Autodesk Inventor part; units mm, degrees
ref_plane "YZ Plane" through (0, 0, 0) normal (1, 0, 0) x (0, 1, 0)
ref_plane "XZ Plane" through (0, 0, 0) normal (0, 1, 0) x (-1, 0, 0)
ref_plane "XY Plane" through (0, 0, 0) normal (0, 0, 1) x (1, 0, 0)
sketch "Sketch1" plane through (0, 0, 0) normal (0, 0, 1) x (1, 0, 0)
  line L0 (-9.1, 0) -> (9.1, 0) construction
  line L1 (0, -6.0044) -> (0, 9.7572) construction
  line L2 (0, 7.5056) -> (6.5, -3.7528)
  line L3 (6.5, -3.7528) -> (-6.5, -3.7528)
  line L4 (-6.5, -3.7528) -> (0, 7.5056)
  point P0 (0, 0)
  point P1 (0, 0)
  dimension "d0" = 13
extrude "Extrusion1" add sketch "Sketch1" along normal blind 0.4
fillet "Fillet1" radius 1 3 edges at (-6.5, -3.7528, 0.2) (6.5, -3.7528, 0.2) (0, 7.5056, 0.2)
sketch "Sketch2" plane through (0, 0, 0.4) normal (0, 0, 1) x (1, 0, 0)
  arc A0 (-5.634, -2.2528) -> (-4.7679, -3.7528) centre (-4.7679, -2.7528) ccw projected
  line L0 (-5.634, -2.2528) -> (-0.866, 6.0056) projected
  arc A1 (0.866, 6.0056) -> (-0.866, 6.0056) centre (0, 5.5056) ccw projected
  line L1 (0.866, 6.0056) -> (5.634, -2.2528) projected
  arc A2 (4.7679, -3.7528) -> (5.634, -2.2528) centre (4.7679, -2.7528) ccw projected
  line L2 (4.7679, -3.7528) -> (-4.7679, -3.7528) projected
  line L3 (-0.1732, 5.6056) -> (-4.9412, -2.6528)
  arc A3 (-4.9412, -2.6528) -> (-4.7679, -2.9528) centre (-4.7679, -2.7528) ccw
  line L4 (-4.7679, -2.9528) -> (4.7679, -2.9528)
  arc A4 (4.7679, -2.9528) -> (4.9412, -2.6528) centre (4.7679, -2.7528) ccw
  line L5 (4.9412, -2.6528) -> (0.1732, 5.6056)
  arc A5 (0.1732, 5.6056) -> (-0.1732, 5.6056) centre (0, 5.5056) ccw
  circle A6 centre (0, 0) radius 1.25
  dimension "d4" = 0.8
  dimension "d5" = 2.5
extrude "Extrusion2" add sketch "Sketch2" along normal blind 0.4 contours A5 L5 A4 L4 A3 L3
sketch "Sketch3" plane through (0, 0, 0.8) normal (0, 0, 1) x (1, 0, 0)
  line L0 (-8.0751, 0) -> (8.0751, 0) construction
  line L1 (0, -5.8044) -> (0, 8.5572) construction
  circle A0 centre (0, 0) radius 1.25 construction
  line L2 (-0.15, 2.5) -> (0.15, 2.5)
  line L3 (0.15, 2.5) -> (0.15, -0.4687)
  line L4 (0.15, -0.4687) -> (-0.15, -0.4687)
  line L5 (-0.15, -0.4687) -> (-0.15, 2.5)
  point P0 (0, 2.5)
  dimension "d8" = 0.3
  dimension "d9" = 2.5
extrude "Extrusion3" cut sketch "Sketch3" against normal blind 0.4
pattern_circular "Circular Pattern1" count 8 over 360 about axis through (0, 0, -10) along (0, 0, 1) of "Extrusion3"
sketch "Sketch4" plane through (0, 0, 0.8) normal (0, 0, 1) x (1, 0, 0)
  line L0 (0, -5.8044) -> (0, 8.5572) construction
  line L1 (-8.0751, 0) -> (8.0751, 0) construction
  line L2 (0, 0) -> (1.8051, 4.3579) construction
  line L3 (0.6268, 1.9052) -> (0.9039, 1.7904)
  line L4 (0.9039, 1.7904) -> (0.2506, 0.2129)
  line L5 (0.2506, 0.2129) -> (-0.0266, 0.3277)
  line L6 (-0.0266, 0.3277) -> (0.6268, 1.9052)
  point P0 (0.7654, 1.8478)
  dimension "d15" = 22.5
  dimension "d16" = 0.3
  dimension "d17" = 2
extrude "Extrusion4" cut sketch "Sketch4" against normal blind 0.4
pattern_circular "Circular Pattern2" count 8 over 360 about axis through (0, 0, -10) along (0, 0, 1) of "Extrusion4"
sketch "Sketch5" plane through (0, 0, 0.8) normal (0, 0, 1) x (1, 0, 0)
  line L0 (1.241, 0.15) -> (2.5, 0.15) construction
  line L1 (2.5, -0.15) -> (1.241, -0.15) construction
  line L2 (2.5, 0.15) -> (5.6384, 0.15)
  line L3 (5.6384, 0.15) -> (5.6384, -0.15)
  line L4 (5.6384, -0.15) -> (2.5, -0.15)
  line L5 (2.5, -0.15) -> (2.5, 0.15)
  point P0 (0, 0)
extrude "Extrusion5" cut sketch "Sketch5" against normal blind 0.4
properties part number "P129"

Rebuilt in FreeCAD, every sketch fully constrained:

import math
import FreeCAD as App
import Part
import Sketcher
Q = App.Units.Quantity


def edges_at(feature, points):
    """Names of the edges that pass closest to the given points."""
    edges = feature.Shape.Edges
    near = lambda p: min(range(len(edges)), key=lambda i: edges[i].distToShape(Part.Vertex(*p))[0])
    return sorted({f"Edge{near(p) + 1}" for p in points})

doc = App.newDocument("Part")
body = doc.addObject("PartDesign::Body", "Body")

# Sketch on XY plane
sketch1 = body.newObject("Sketcher::SketchObject", "Sketch")
sketch1.AttachmentSupport = (doc.getObject("XY_Plane"), [""])
sketch1.MapMode = "FlatFace"
sketch1.addGeometry([
    Part.LineSegment(App.Vector(6, -4, 0), App.Vector(0, 8, 0)),
    Part.LineSegment(App.Vector(0, 8, 0), App.Vector(-6, -4, 0)),
    Part.LineSegment(App.Vector(-6, -4, 0), App.Vector(6, -4, 0)),
], False)
sketch1.addConstraint([
    Sketcher.Constraint("Coincident", 0, 2, 1, 1),
    Sketcher.Constraint("Coincident", 1, 2, 2, 1),
    Sketcher.Constraint("Coincident", 2, 2, 0, 1),
    Sketcher.Constraint("Horizontal", 2),
    Sketcher.Constraint("PointOnObject", 0, 2, -2),
    Sketcher.Constraint("Equal", 0, 1),
    Sketcher.Constraint("DistanceX", 2, 1, 2, 2, 13.0),
    Sketcher.Constraint("Distance", 0, 13.0),
    Sketcher.Constraint("DistanceY", -1, 1, 0, 2, 7.5056),
])
pad1 = body.newObject("PartDesign::Pad", "Pad")
pad1.Profile = sketch1
pad1.Length = 0.4
doc.recompute()

fillet = body.newObject("PartDesign::Fillet", "Fillet")
fillet.Base = (pad1, edges_at(pad1, [(-6.5, -3.753, 0.2), (6.5, -3.753, 0.2), (0, 7.506, 0.2)]))
fillet.Radius = 1

# Sketch on XY plane
sketch2 = body.newObject("Sketcher::SketchObject", "Sketch001")
sketch2.AttachmentSupport = (doc.getObject("XY_Plane"), [""])
sketch2.MapMode = "FlatFace"
sketch2.AttachmentOffset = App.Placement(App.Vector(0, 0, 0.4), App.Rotation())
sketch2.addGeometry([
    Part.ArcOfCircle(Part.Circle(App.Vector(0, 5.51, 0), App.Vector(0, 0, 1), 0.2), math.radians(30), math.radians(150)),  # 0
    Part.LineSegment(App.Vector(-0.17, 5.61, 0), App.Vector(-4.94, -2.65, 0)),  # 1
    Part.ArcOfCircle(Part.Circle(App.Vector(-4.77, -2.75, 0), App.Vector(0, 0, 1), 0.2), math.radians(150), math.radians(270)),  # 2
    Part.LineSegment(App.Vector(-4.77, -2.95, 0), App.Vector(4.77, -2.95, 0)),  # 3
    Part.ArcOfCircle(Part.Circle(App.Vector(4.77, -2.75, 0), App.Vector(0, 0, 1), 0.2), math.radians(-90), math.radians(30)),  # 4
    Part.LineSegment(App.Vector(4.94, -2.65, 0), App.Vector(0.17, 5.61, 0)),  # 5
    Part.Circle(App.Vector(0, 0, 0), App.Vector(0, 0, 1), 1.25),  # 6
], False)
sketch2.addConstraint([
    Sketcher.Constraint("Tangent", 0, 2, 1, 1),
    Sketcher.Constraint("Tangent", 1, 2, 2, 1),
    Sketcher.Constraint("Tangent", 2, 2, 3, 1),
    Sketcher.Constraint("Tangent", 3, 2, 4, 1),
    Sketcher.Constraint("Tangent", 4, 2, 5, 1),
    Sketcher.Constraint("Tangent", 5, 2, 0, 1),
    Sketcher.Constraint("Horizontal", 3),
    Sketcher.Constraint("Coincident", 6, 3, -1, 1),
    Sketcher.Constraint("Equal", 0, 2),
    Sketcher.Constraint("Equal", 2, 4),
    Sketcher.Constraint("Symmetric", 1, 2, 4, 2, -2),
    Sketcher.Constraint("Diameter", 6, 2.5),
    Sketcher.Constraint("Radius", 0, 0.2),
    Sketcher.Constraint("Angle", 1, Q("-120 deg")),
    Sketcher.Constraint("Distance", 1, 9.536),
    Sketcher.Constraint("DistanceY", 2, 2, -1, 1, 2.953),
])
pad2 = body.newObject("PartDesign::Pad", "Pad001")
pad2.Profile = sketch2
pad2.Length = 0.4

# Sketch on XY plane
sketch3 = body.newObject("Sketcher::SketchObject", "Sketch002")
sketch3.AttachmentSupport = (doc.getObject("XY_Plane"), [""])
sketch3.MapMode = "FlatFace"
sketch3.AttachmentOffset = App.Placement(App.Vector(0, 0, 0.8), App.Rotation())
sketch3.addGeometry([
    Part.LineSegment(App.Vector(0.15, 2.5, 0), App.Vector(-0.15, 2.5, 0)),
    Part.LineSegment(App.Vector(-0.15, 2.5, 0), App.Vector(-0.15, -0.47, 0)),
    Part.LineSegment(App.Vector(-0.15, -0.47, 0), App.Vector(0.15, -0.47, 0)),
    Part.LineSegment(App.Vector(0.15, -0.47, 0), App.Vector(0.15, 2.5, 0)),
], False)
sketch3.addConstraint([
    Sketcher.Constraint("Coincident", 0, 2, 1, 1),
    Sketcher.Constraint("Coincident", 1, 2, 2, 1),
    Sketcher.Constraint("Coincident", 2, 2, 3, 1),
    Sketcher.Constraint("Coincident", 3, 2, 0, 1),
    Sketcher.Constraint("Horizontal", 0),
    Sketcher.Constraint("Vertical", 1),
    Sketcher.Constraint("Horizontal", 2),
    Sketcher.Constraint("Vertical", 3),
    Sketcher.Constraint("DistanceX", 0, 2, 0, 1, 0.3),
    Sketcher.Constraint("DistanceY", -1, 1, 0, 2, 2.5),
    Sketcher.Constraint("DistanceX", 0, 2, -1, 1, 0.15),
    Sketcher.Constraint("DistanceY", 1, 2, 1, 1, 2.9687),
])
pocket1 = body.newObject("PartDesign::Pocket", "Pocket")
pocket1.Profile = sketch3
pocket1.Length = 0.4
doc.recompute()

polarpattern = body.newObject("PartDesign::PolarPattern", "PolarPattern")
polarpattern.Originals = [pocket1]
polarpattern.Axis = (doc.getObject("Z_Axis"), [""])
polarpattern.Angle = 360
polarpattern.Occurrences = 8
body.Tip = polarpattern

# Sketch on XY plane
sketch4 = body.newObject("Sketcher::SketchObject", "Sketch003")
sketch4.AttachmentSupport = (doc.getObject("XY_Plane"), [""])
sketch4.MapMode = "FlatFace"
sketch4.AttachmentOffset = App.Placement(App.Vector(0, 0, 0.8), App.Rotation())
sketch4.addGeometry([
    Part.LineSegment(App.Vector(0.9, 1.79, 0), App.Vector(0.63, 1.91, 0)),
    Part.LineSegment(App.Vector(0.63, 1.91, 0), App.Vector(-0.03, 0.33, 0)),
    Part.LineSegment(App.Vector(-0.03, 0.33, 0), App.Vector(0.25, 0.21, 0)),
    Part.LineSegment(App.Vector(0.25, 0.21, 0), App.Vector(0.9, 1.79, 0)),
], False)
sketch4.addConstraint([
    Sketcher.Constraint("Coincident", 0, 2, 1, 1),
    Sketcher.Constraint("Coincident", 1, 2, 2, 1),
    Sketcher.Constraint("Coincident", 2, 2, 3, 1),
    Sketcher.Constraint("Coincident", 3, 2, 0, 1),
    Sketcher.Constraint("Perpendicular", 0, 1),
    Sketcher.Constraint("Perpendicular", 1, 2),
    Sketcher.Constraint("Perpendicular", 2, 3),
    Sketcher.Constraint("Distance", 0, 0.3),
    Sketcher.Constraint("Angle", 1, Q("-112.4993 deg")),
    Sketcher.Constraint("DistanceY", -1, 1, 2, 2, 0.213),
    Sketcher.Constraint("DistanceX", -1, 1, 3, 2, 0.904),
    Sketcher.Constraint("Distance", 1, 1.7075),
])
pocket2 = body.newObject("PartDesign::Pocket", "Pocket001")
pocket2.Profile = sketch4
pocket2.Length = 0.4
doc.recompute()

polarpattern2 = body.newObject("PartDesign::PolarPattern", "PolarPattern001")
polarpattern2.Originals = [pocket2]
polarpattern2.Axis = (doc.getObject("Z_Axis"), [""])
polarpattern2.Angle = 360
polarpattern2.Occurrences = 8
body.Tip = polarpattern2

# Sketch on XY plane
sketch5 = body.newObject("Sketcher::SketchObject", "Sketch004")
sketch5.AttachmentSupport = (doc.getObject("XY_Plane"), [""])
sketch5.MapMode = "FlatFace"
sketch5.AttachmentOffset = App.Placement(App.Vector(0, 0, 0.8), App.Rotation())
sketch5.addGeometry([
    Part.LineSegment(App.Vector(5.64, 0.15, 0), App.Vector(2.5, 0.15, 0)),
    Part.LineSegment(App.Vector(2.5, 0.15, 0), App.Vector(2.5, -0.15, 0)),
    Part.LineSegment(App.Vector(2.5, -0.15, 0), App.Vector(5.64, -0.15, 0)),
    Part.LineSegment(App.Vector(5.64, -0.15, 0), App.Vector(5.64, 0.15, 0)),
], False)
sketch5.addConstraint([
    Sketcher.Constraint("Coincident", 0, 2, 1, 1),
    Sketcher.Constraint("Coincident", 1, 2, 2, 1),
    Sketcher.Constraint("Coincident", 2, 2, 3, 1),
    Sketcher.Constraint("Coincident", 3, 2, 0, 1),
    Sketcher.Constraint("Horizontal", 0),
    Sketcher.Constraint("Vertical", 1),
    Sketcher.Constraint("Horizontal", 2),
    Sketcher.Constraint("Vertical", 3),
    Sketcher.Constraint("DistanceY", 1, 2, 1, 1, 0.3),
    Sketcher.Constraint("DistanceX", -1, 1, 0, 2, 2.5),
    Sketcher.Constraint("DistanceY", -1, 1, 0, 2, 0.15),
    Sketcher.Constraint("DistanceX", 0, 2, 0, 1, 3.1384),
])
pocket3 = body.newObject("PartDesign::Pocket", "Pocket002")
pocket3.Profile = sketch5
pocket3.Length = 0.4

doc.recompute()
